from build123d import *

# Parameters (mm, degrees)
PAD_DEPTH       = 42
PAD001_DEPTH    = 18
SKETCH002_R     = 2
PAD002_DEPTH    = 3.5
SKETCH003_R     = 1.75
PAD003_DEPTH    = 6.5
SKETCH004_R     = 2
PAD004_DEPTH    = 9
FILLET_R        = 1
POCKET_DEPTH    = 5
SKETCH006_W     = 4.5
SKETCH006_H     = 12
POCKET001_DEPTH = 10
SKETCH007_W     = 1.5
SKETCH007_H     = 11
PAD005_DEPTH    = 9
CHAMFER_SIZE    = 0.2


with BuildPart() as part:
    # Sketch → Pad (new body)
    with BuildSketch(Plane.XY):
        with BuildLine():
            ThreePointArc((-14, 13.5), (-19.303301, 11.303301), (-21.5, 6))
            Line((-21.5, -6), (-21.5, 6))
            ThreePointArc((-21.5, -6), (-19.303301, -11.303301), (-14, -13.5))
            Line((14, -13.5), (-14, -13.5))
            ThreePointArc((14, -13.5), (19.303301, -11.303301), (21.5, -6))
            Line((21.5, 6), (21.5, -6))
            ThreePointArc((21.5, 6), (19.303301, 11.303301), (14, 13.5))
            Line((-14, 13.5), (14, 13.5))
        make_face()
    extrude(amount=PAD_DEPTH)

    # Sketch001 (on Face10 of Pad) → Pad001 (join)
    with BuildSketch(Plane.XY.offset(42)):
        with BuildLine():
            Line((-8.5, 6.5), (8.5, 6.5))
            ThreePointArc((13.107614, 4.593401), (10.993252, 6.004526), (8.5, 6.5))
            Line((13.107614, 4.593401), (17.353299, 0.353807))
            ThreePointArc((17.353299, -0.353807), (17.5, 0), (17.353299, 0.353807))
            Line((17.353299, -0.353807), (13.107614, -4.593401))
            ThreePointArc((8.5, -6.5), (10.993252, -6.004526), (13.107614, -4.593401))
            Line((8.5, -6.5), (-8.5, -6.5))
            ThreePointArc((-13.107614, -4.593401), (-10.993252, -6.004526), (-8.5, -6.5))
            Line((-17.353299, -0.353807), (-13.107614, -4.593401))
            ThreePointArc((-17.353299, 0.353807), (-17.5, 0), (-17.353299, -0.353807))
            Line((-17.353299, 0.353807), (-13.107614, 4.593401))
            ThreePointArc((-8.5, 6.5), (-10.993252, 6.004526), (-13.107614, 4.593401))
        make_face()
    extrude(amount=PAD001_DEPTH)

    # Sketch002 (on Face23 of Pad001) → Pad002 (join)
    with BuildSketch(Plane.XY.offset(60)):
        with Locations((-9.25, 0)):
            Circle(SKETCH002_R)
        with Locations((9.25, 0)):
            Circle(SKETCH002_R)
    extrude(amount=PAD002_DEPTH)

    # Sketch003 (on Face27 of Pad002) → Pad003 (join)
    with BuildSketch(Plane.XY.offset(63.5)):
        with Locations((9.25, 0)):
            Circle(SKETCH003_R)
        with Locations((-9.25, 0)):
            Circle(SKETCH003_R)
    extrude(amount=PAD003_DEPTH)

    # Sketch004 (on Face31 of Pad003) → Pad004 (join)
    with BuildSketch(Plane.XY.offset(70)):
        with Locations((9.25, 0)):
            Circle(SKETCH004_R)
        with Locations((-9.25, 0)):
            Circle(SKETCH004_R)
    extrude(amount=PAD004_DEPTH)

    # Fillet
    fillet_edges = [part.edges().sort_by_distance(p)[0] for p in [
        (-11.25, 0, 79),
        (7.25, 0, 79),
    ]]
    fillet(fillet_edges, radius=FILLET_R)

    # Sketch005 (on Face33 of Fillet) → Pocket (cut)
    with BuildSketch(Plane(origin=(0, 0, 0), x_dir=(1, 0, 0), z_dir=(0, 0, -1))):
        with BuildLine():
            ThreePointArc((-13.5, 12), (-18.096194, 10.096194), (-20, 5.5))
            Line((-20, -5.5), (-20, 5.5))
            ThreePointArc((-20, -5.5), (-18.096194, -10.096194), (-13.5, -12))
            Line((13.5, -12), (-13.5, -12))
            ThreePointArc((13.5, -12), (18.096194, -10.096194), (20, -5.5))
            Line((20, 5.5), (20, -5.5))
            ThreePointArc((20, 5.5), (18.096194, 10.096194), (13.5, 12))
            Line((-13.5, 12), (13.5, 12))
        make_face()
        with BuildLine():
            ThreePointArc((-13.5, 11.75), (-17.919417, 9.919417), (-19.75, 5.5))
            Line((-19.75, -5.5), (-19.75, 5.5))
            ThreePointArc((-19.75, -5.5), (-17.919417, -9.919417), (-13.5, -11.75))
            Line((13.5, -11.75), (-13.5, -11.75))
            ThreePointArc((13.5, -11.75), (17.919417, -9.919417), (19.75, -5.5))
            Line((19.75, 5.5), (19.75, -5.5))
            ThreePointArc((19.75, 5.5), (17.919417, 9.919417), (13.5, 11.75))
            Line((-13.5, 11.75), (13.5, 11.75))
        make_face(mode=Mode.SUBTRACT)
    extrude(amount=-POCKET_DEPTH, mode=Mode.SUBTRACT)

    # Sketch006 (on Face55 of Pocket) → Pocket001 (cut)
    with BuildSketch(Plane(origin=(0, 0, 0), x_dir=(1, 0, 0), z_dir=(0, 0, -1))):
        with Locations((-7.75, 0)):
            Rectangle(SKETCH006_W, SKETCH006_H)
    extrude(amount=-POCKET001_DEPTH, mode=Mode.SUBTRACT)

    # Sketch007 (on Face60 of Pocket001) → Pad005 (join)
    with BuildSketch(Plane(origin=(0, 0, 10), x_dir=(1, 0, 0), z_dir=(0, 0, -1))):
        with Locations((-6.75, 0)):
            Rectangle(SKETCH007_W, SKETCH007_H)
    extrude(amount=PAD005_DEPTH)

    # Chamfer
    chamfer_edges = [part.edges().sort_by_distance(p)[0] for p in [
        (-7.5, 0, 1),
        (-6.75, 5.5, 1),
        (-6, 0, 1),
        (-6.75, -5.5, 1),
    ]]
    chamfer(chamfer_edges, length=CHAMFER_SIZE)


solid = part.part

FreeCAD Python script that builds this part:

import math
import FreeCAD as App
import Part
import Sketcher

V = App.Vector
Q = App.Units.Quantity


def edges_at(feature, points):
    """Names of the edges that pass closest to the given points."""
    edges = feature.Shape.Edges
    near = lambda p: min(range(len(edges)), key=lambda i: edges[i].distToShape(Part.Vertex(*p))[0])
    return sorted({f"Edge{near(p) + 1}" for p in points})


def add_polygon(sketch, points):
    """Adds a closed chain of lines whose ends are joined by coincident constraints."""
    first, n = sketch.GeometryCount, len(points)
    for a, b in zip(points, points[1:] + points[:1]):
        sketch.addGeometry(Part.LineSegment(App.Vector(*a, 0), App.Vector(*b, 0)), False)
    for i in range(n):
        sketch.addConstraint(Sketcher.Constraint("Coincident", first + i, 2, first + (i + 1) % n, 1))

doc = App.newDocument("Part")
params = doc.addObject("Spreadsheet::Sheet", "Params")
for row, (alias, value) in enumerate([
    ("sketch1_radius", "7.5 mm"),
    ("sketch1_width", "28 mm"),
    ("sketch1_height", "12 mm"),
    ("pad1_length", "42 mm"),
    ("sketch2_radius", "0.499999 mm"),
    ("sketch2_width", "17 mm"),
    ("sketch2_length", "6 mm"),
    ("pad2_length", "18 mm"),
    ("sketch3_diameter", "4 mm"),
    ("pad3_length", "3.5 mm"),
    ("sketch4_diameter", "3.5 mm"),
    ("pad4_length", "6.5 mm"),
    ("sketch5_diameter", "4 mm"),
    ("pad5_length", "9 mm"),
    ("fillet_radius", "1 mm"),
    ("sketch6_radius", "6.5 mm"),
    ("sketch6_width", "27 mm"),
    ("sketch6_height", "11 mm"),
    ("sketch6_radius2", "6.250001 mm"),
    ("pocket1_length", "5 mm"),
    ("sketch7_height", "12 mm"),
    ("sketch7_width", "4.5 mm"),
    ("pocket2_length", "10 mm"),
    ("sketch8_height", "11 mm"),
    ("sketch8_width", "1.5 mm"),
    ("pad6_length", "9 mm"),
    ("chamfer_size", "0.2 mm"),
], start=1):
    params.set(f"A{row}", alias)
    params.set(f"B{row}", "=" + value)
    params.setAlias(f"B{row}", alias)

body = doc.addObject("PartDesign::Body", "Body")

sketch1 = body.newObject("Sketcher::SketchObject", "Sketch")
sketch1.AttachmentSupport = (doc.getObject("XY_Plane"), [""])
sketch1.MapMode = "FlatFace"
sketch1.addGeometry(Part.ArcOfCircle(Part.Circle(V(-14, 6, 0), V(0, 0, 1), 7), math.radians(90), math.radians(180)), False)
sketch1.addGeometry(Part.LineSegment(V(-22, 6, 0), V(-22, -6, 0)), False)
sketch1.addGeometry(Part.ArcOfCircle(Part.Circle(V(-14, -6, 0), V(0, 0, 1), 7), math.radians(180), math.radians(270)), False)
sketch1.addGeometry(Part.LineSegment(V(-14, -14, 0), V(14, -14, 0)), False)
sketch1.addGeometry(Part.ArcOfCircle(Part.Circle(V(14, -6, 0), V(0, 0, 1), 7), math.radians(-90), math.radians(0)), False)
sketch1.addGeometry(Part.LineSegment(V(22, -6, 0), V(22, 6, 0)), False)
sketch1.addGeometry(Part.ArcOfCircle(Part.Circle(V(14, 6, 0), V(0, 0, 1), 7), math.radians(0), math.radians(90)), False)
sketch1.addGeometry(Part.LineSegment(V(14, 14, 0), V(-14, 14, 0)), False)
sketch1.addConstraint(Sketcher.Constraint("Tangent", 0, 2, 1, 1))
sketch1.addConstraint(Sketcher.Constraint("Tangent", 1, 2, 2, 1))
sketch1.addConstraint(Sketcher.Constraint("Tangent", 2, 2, 3, 1))
sketch1.addConstraint(Sketcher.Constraint("Tangent", 3, 2, 4, 1))
sketch1.addConstraint(Sketcher.Constraint("Tangent", 4, 2, 5, 1))
sketch1.addConstraint(Sketcher.Constraint("Tangent", 5, 2, 6, 1))
sketch1.addConstraint(Sketcher.Constraint("Tangent", 6, 2, 7, 1))
sketch1.addConstraint(Sketcher.Constraint("Tangent", 7, 2, 0, 1))
sketch1.addConstraint(Sketcher.Constraint("Vertical", 1))
sketch1.addConstraint(Sketcher.Constraint("Horizontal", 3))
sketch1.addConstraint(Sketcher.Constraint("Vertical", 5))
sketch1.addConstraint(Sketcher.Constraint("Horizontal", 7))
sketch1.addConstraint(Sketcher.Constraint("Equal", 0, 2))
sketch1.addConstraint(Sketcher.Constraint("Equal", 2, 4))
sketch1.addConstraint(Sketcher.Constraint("Equal", 4, 6))
sketch1.addConstraint(Sketcher.Constraint("Symmetric", 0, 3, 4, 3, -1, 1))
sketch1.addConstraint(Sketcher.Constraint("Radius", 0, Q("7.5 mm")))
sketch1.addConstraint(Sketcher.Constraint("DistanceX", 3, 1, 3, 2, Q("28 mm")))
sketch1.addConstraint(Sketcher.Constraint("DistanceY", 1, 2, 1, 1, Q("12 mm")))
sketch1.setExpression("Constraints[16]", "Params.sketch1_radius")
sketch1.setExpression("Constraints[17]", "Params.sketch1_width")
sketch1.setExpression("Constraints[18]", "Params.sketch1_height")
pad1 = body.newObject("PartDesign::Pad", "Pad")
pad1.Profile = sketch1
pad1.setExpression("Length", "Params.pad1_length")

sketch2 = body.newObject("Sketcher::SketchObject", "Sketch001")
sketch2.AttachmentSupport = (doc.getObject("XY_Plane"), [""])
sketch2.MapMode = "FlatFace"
sketch2.AttachmentOffset = App.Placement(V(0, 0, 42), App.Rotation())
sketch2.addGeometry(Part.LineSegment(V(8.5, 6.5, 0), V(-8.5, 6.5, 0)), False)
sketch2.addGeometry(Part.ArcOfCircle(Part.Circle(V(-8.5, -0.02, 0), V(0, 0, 1), 6.52), math.radians(90), math.radians(135)), False)
sketch2.addGeometry(Part.LineSegment(V(-13.11, 4.59, 0), V(-17.35, 0.35, 0)), False)
sketch2.addGeometry(Part.ArcOfCircle(Part.Circle(V(-17, 0, 0), V(0, 0, 1), 0.5), math.radians(135), math.radians(225)), False)
sketch2.addGeometry(Part.LineSegment(V(-17.35, -0.35, 0), V(-13.11, -4.59, 0)), False)
sketch2.addGeometry(Part.ArcOfCircle(Part.Circle(V(-8.5, 0.02, 0), V(0, 0, 1), 6.52), math.radians(-135), math.radians(-90)), False)
sketch2.addGeometry(Part.LineSegment(V(-8.5, -6.5, 0), V(8.5, -6.5, 0)), False)
sketch2.addGeometry(Part.ArcOfCircle(Part.Circle(V(8.5, 0.02, 0), V(0, 0, 1), 6.52), math.radians(-90), math.radians(-45)), False)
sketch2.addGeometry(Part.LineSegment(V(13.11, -4.59, 0), V(17.35, -0.35, 0)), False)
sketch2.addGeometry(Part.ArcOfCircle(Part.Circle(V(17, 0, 0), V(0, 0, 1), 0.5), math.radians(-45), math.radians(45)), False)
sketch2.addGeometry(Part.LineSegment(V(17.35, 0.35, 0), V(13.11, 4.59, 0)), False)
sketch2.addGeometry(Part.ArcOfCircle(Part.Circle(V(8.5, -0.02, 0), V(0, 0, 1), 6.52), math.radians(45), math.radians(90)), False)
sketch2.addConstraint(Sketcher.Constraint("Tangent", 0, 2, 1, 1))
sketch2.addConstraint(Sketcher.Constraint("Tangent", 1, 2, 2, 1))
sketch2.addConstraint(Sketcher.Constraint("Coincident", 2, 2, 3, 1))
sketch2.addConstraint(Sketcher.Constraint("Coincident", 3, 2, 4, 1))
sketch2.addConstraint(Sketcher.Constraint("Tangent", 4, 2, 5, 1))
sketch2.addConstraint(Sketcher.Constraint("Tangent", 5, 2, 6, 1))
sketch2.addConstraint(Sketcher.Constraint("Tangent", 6, 2, 7, 1))
sketch2.addConstraint(Sketcher.Constraint("Tangent", 7, 2, 8, 1))
sketch2.addConstraint(Sketcher.Constraint("Coincident", 8, 2, 9, 1))
sketch2.addConstraint(Sketcher.Constraint("Coincident", 9, 2, 10, 1))
sketch2.addConstraint(Sketcher.Constraint("Tangent", 10, 2, 11, 1))
sketch2.addConstraint(Sketcher.Constraint("Tangent", 11, 2, 0, 1))
sketch2.addConstraint(Sketcher.Constraint("Horizontal", 0))
sketch2.addConstraint(Sketcher.Constraint("Horizontal", 6))
sketch2.addConstraint(Sketcher.Constraint("Equal", 1, 5))
sketch2.addConstraint(Sketcher.Constraint("Equal", 5, 7))
sketch2.addConstraint(Sketcher.Constraint("Equal", 3, 9))
sketch2.addConstraint(Sketcher.Constraint("Equal", 7, 11))
sketch2.addConstraint(Sketcher.Constraint("Symmetric", 1, 3, 7, 3, -1, 1))
sketch2.addConstraint(Sketcher.Constraint("Symmetric", 3, 3, 9, 3, -1, 1))
sketch2.addConstraint(Sketcher.Constraint("Symmetric", 4, 2, 7, 2, -2))
sketch2.addConstraint(Sketcher.Constraint("Parallel", 4, 10))
sketch2.addConstraint(Sketcher.Constraint("Horizontal", 3, 2, 8, 2))
sketch2.addConstraint(Sketcher.Constraint("Horizontal", 2, 2, 9, 2))
sketch2.addConstraint(Sketcher.Constraint("Vertical", 2, 2, 3, 2))
sketch2.addConstraint(Sketcher.Constraint("Radius", 3, Q("0.499999 mm")))
sketch2.addConstraint(Sketcher.Constraint("DistanceX", 0, 2, 0, 1, Q("17 mm")))
sketch2.addConstraint(Sketcher.Constraint("Distance", 2, Q("6 mm")))
sketch2.addConstraint(Sketcher.Constraint("DistanceX", 3, 3, -1, 1, Q("17.000001 mm")))
sketch2.addConstraint(Sketcher.Constraint("DistanceY", -1, 1, 0, 2, Q("6.5 mm")))
sketch2.addConstraint(Sketcher.Constraint("Radius", 1, Q("6.520839 mm")))
sketch2.setExpression("Constraints[25]", "Params.sketch2_radius")
sketch2.setExpression("Constraints[26]", "Params.sketch2_width")
sketch2.setExpression("Constraints[27]", "Params.sketch2_length")
pad2 = body.newObject("PartDesign::Pad", "Pad001")
pad2.Profile = sketch2
pad2.setExpression("Length", "Params.pad2_length")

sketch3 = body.newObject("Sketcher::SketchObject", "Sketch002")
sketch3.AttachmentSupport = (doc.getObject("XY_Plane"), [""])
sketch3.MapMode = "FlatFace"
sketch3.AttachmentOffset = App.Placement(V(0, 0, 60), App.Rotation())
sketch3.addGeometry(Part.Circle(V(-9.2, 0, 0), V(0, 0, 1), 2), False)
sketch3.addGeometry(Part.Circle(V(9.2, 0, 0), V(0, 0, 1), 2), False)
sketch3.addConstraint(Sketcher.Constraint("Equal", 0, 1))
sketch3.addConstraint(Sketcher.Constraint("Symmetric", 0, 3, 1, 3, -1, 1))
sketch3.addConstraint(Sketcher.Constraint("PointOnObject", 0, 3, -1))
sketch3.addConstraint(Sketcher.Constraint("Diameter", 0, Q("4 mm")))
sketch3.addConstraint(Sketcher.Constraint("DistanceX", 0, 3, 1, 3, Q("18.5 mm")))
sketch3.setExpression("Constraints[3]", "Params.sketch3_diameter")
pad3 = body.newObject("PartDesign::Pad", "Pad002")
pad3.Profile = sketch3
pad3.setExpression("Length", "Params.pad3_length")

sketch4 = body.newObject("Sketcher::SketchObject", "Sketch003")
sketch4.AttachmentSupport = (doc.getObject("XY_Plane"), [""])
sketch4.MapMode = "FlatFace"
sketch4.AttachmentOffset = App.Placement(V(0, 0, 63.5), App.Rotation())
sketch4.addGeometry(Part.Circle(V(9.2, 0, 0), V(0, 0, 1), 1.8), False)
sketch4.addGeometry(Part.Circle(V(-9.2, 0, 0), V(0, 0, 1), 1.8), False)
sketch4.addConstraint(Sketcher.Constraint("Equal", 0, 1))
sketch4.addConstraint(Sketcher.Constraint("Symmetric", 0, 3, 1, 3, -1, 1))
sketch4.addConstraint(Sketcher.Constraint("PointOnObject", 0, 3, -1))
sketch4.addConstraint(Sketcher.Constraint("Diameter", 0, Q("3.5 mm")))
sketch4.addConstraint(Sketcher.Constraint("DistanceX", 1, 3, 0, 3, Q("18.5 mm")))
sketch4.setExpression("Constraints[3]", "Params.sketch4_diameter")
pad4 = body.newObject("PartDesign::Pad", "Pad003")
pad4.Profile = sketch4
pad4.setExpression("Length", "Params.pad4_length")

sketch5 = body.newObject("Sketcher::SketchObject", "Sketch004")
sketch5.AttachmentSupport = (doc.getObject("XY_Plane"), [""])
sketch5.MapMode = "FlatFace"
sketch5.AttachmentOffset = App.Placement(V(0, 0, 70), App.Rotation())
sketch5.addGeometry(Part.Circle(V(9.2, 0, 0), V(0, 0, 1), 2), False)
sketch5.addGeometry(Part.Circle(V(-9.2, 0, 0), V(0, 0, 1), 2), False)
sketch5.addConstraint(Sketcher.Constraint("Equal", 0, 1))
sketch5.addConstraint(Sketcher.Constraint("Symmetric", 0, 3, 1, 3, -1, 1))
sketch5.addConstraint(Sketcher.Constraint("PointOnObject", 0, 3, -1))
sketch5.addConstraint(Sketcher.Constraint("Diameter", 0, Q("4 mm")))
sketch5.addConstraint(Sketcher.Constraint("DistanceX", 1, 3, 0, 3, Q("18.5 mm")))
sketch5.setExpression("Constraints[3]", "Params.sketch5_diameter")
pad5 = body.newObject("PartDesign::Pad", "Pad004")
pad5.Profile = sketch5
pad5.setExpression("Length", "Params.pad5_length")
doc.recompute()

fillet = body.newObject("PartDesign::Fillet", "Fillet")
fillet.Base = (pad5, edges_at(pad5, [(-11.25, 0, 79), (7.25, 0, 79)]))
fillet.setExpression("Radius", "Params.fillet_radius")

sketch6 = body.newObject("Sketcher::SketchObject", "Sketch005")
sketch6.AttachmentSupport = (doc.getObject("XY_Plane"), [""])
sketch6.MapMode = "FlatFace"
sketch6.addGeometry(Part.ArcOfCircle(Part.Circle(V(-13, -5, 0), V(0, 0, 1), 7), math.radians(-180), math.radians(-90)), False)
sketch6.addGeometry(Part.LineSegment(V(-20, -6, 0), V(-20, 6, 0)), False)
sketch6.addGeometry(Part.ArcOfCircle(Part.Circle(V(-13, 5, 0), V(0, 0, 1), 7), math.radians(90), math.radians(180)), False)
sketch6.addGeometry(Part.LineSegment(V(-14, 12, 0), V(14, 12, 0)), False)
sketch6.addGeometry(Part.ArcOfCircle(Part.Circle(V(13, 5, 0), V(0, 0, 1), 7), math.radians(0), math.radians(90)), False)
sketch6.addGeometry(Part.LineSegment(V(20, 6, 0), V(20, -6, 0)), False)
sketch6.addGeometry(Part.ArcOfCircle(Part.Circle(V(13, -5, 0), V(0, 0, 1), 7), math.radians(-90), math.radians(0)), False)
sketch6.addGeometry(Part.LineSegment(V(14, -12, 0), V(-14, -12, 0)), False)
sketch6.addGeometry(Part.ArcOfCircle(Part.Circle(V(-13, -5, 0), V(0, 0, 1), 6), math.radians(-180), math.radians(-90)), False)
sketch6.addGeometry(Part.LineSegment(V(-14, -12, 0), V(14, -12, 0)), False)
sketch6.addGeometry(Part.ArcOfCircle(Part.Circle(V(13, -5, 0), V(0, 0, 1), 6), math.radians(-90), math.radians(0)), False)
sketch6.addGeometry(Part.LineSegment(V(20, -6, 0), V(20, 6, 0)), False)
sketch6.addGeometry(Part.ArcOfCircle(Part.Circle(V(13, 5, 0), V(0, 0, 1), 6), math.radians(0), math.radians(90)), False)
sketch6.addGeometry(Part.LineSegment(V(14, 12, 0), V(-14, 12, 0)), False)
sketch6.addGeometry(Part.ArcOfCircle(Part.Circle(V(-13, 5, 0), V(0, 0, 1), 6), math.radians(90), math.radians(180)), False)
sketch6.addGeometry(Part.LineSegment(V(-20, 6, 0), V(-20, -6, 0)), False)
sketch6.addConstraint(Sketcher.Constraint("Tangent", 0, 1, 1, 1))
sketch6.addConstraint(Sketcher.Constraint("Tangent", 1, 2, 2, 2))
sketch6.addConstraint(Sketcher.Constraint("Tangent", 2, 1, 3, 1))
sketch6.addConstraint(Sketcher.Constraint("Tangent", 3, 2, 4, 2))
sketch6.addConstraint(Sketcher.Constraint("Tangent", 4, 1, 5, 1))
sketch6.addConstraint(Sketcher.Constraint("Tangent", 5, 2, 6, 2))
sketch6.addConstraint(Sketcher.Constraint("Tangent", 6, 1, 7, 1))
sketch6.addConstraint(Sketcher.Constraint("Tangent", 7, 2, 0, 2))
sketch6.addConstraint(Sketcher.Constraint("Tangent", 8, 2, 9, 1))
sketch6.addConstraint(Sketcher.Constraint("Tangent", 9, 2, 10, 1))
sketch6.addConstraint(Sketcher.Constraint("Tangent", 10, 2, 11, 1))
sketch6.addConstraint(Sketcher.Constraint("Tangent", 11, 2, 12, 1))
sketch6.addConstraint(Sketcher.Constraint("Tangent", 12, 2, 13, 1))
sketch6.addConstraint(Sketcher.Constraint("Tangent", 13, 2, 14, 1))
sketch6.addConstraint(Sketcher.Constraint("Tangent", 14, 2, 15, 1))
sketch6.addConstraint(Sketcher.Constraint("Tangent", 15, 2, 8, 1))
sketch6.addConstraint(Sketcher.Constraint("Vertical", 1))
sketch6.addConstraint(Sketcher.Constraint("Horizontal", 3))
sketch6.addConstraint(Sketcher.Constraint("Vertical", 5))
sketch6.addConstraint(Sketcher.Constraint("Horizontal", 7))
sketch6.addConstraint(Sketcher.Constraint("Horizontal", 9))
sketch6.addConstraint(Sketcher.Constraint("Vertical", 11))
sketch6.addConstraint(Sketcher.Constraint("Horizontal", 13))
sketch6.addConstraint(Sketcher.Constraint("Vertical", 15))
sketch6.addConstraint(Sketcher.Constraint("Coincident", 8, 3, 0, 3))
sketch6.addConstraint(Sketcher.Constraint("Coincident", 10, 3, 6, 3))
sketch6.addConstraint(Sketcher.Constraint("Coincident", 12, 3, 4, 3))
sketch6.addConstraint(Sketcher.Constraint("Equal", 0, 2))
sketch6.addConstraint(Sketcher.Constraint("Equal", 2, 4))
sketch6.addConstraint(Sketcher.Constraint("Equal", 4, 6))
sketch6.addConstraint(Sketcher.Constraint("Equal", 12, 14))
sketch6.addConstraint(Sketcher.Constraint("Symmetric", 0, 3, 4, 3, -1, 1))
sketch6.addConstraint(Sketcher.Constraint("Radius", 0, Q("6.5 mm")))
sketch6.addConstraint(Sketcher.Constraint("DistanceX", 3, 1, 3, 2, Q("27 mm")))
sketch6.addConstraint(Sketcher.Constraint("DistanceY", 1, 1, 1, 2, Q("11 mm")))
sketch6.addConstraint(Sketcher.Constraint("Radius", 8, Q("6.250001 mm")))
sketch6.setExpression("Constraints[32]", "Params.sketch6_radius")
sketch6.setExpression("Constraints[33]", "Params.sketch6_width")
sketch6.setExpression("Constraints[34]", "Params.sketch6_height")
sketch6.setExpression("Constraints[35]", "Params.sketch6_radius2")
pocket1 = body.newObject("PartDesign::Pocket", "Pocket")
pocket1.Profile = sketch6
pocket1.setExpression("Length", "Params.pocket1_length")
pocket1.Reversed = True

sketch7 = body.newObject("Sketcher::SketchObject", "Sketch006")
sketch7.AttachmentSupport = (doc.getObject("XY_Plane"), [""])
sketch7.MapMode = "FlatFace"
add_polygon(sketch7, [(-10, -6), (-10, 6), (-5.5, 6), (-5.5, -6)])
sketch7.addConstraint(Sketcher.Constraint("Vertical", 0))
sketch7.addConstraint(Sketcher.Constraint("Horizontal", 1))
sketch7.addConstraint(Sketcher.Constraint("Vertical", 2))
sketch7.addConstraint(Sketcher.Constraint("Horizontal", 3))
sketch7.addConstraint(Sketcher.Constraint("DistanceY", 0, 1, 0, 2, Q("12 mm")))
sketch7.addConstraint(Sketcher.Constraint("DistanceX", 1, 1, 1, 2, Q("4.5 mm")))
sketch7.addConstraint(Sketcher.Constraint("DistanceX", 0, 2, -1, 1, Q("10 mm")))
sketch7.addConstraint(Sketcher.Constraint("DistanceY", -1, 1, 0, 2, Q("6 mm")))
sketch7.setExpression("Constraints[8]", "Params.sketch7_height")
sketch7.setExpression("Constraints[9]", "Params.sketch7_width")
pocket2 = body.newObject("PartDesign::Pocket", "Pocket001")
pocket2.Profile = sketch7
pocket2.setExpression("Length", "Params.pocket2_length")
pocket2.Reversed = True

sketch8 = body.newObject("Sketcher::SketchObject", "Sketch007")
sketch8.AttachmentSupport = (doc.getObject("XY_Plane"), [""])
sketch8.MapMode = "FlatFace"
sketch8.AttachmentOffset = App.Placement(V(0, 0, 10), App.Rotation())
add_polygon(sketch8, [(-7.5, -5.5), (-7.5, 5.5), (-6, 5.5), (-6, -5.5)])
sketch8.addConstraint(Sketcher.Constraint("Vertical", 0))
sketch8.addConstraint(Sketcher.Constraint("Horizontal", 1))
sketch8.addConstraint(Sketcher.Constraint("Vertical", 2))
sketch8.addConstraint(Sketcher.Constraint("Horizontal", 3))
sketch8.addConstraint(Sketcher.Constraint("DistanceY", 0, 1, 0, 2, Q("11 mm")))
sketch8.addConstraint(Sketcher.Constraint("DistanceX", 1, 1, 1, 2, Q("1.5 mm")))
sketch8.addConstraint(Sketcher.Constraint("DistanceX", 1, 2, -1, 1, Q("6 mm")))
sketch8.addConstraint(Sketcher.Constraint("DistanceY", -1, 1, 0, 2, Q("5.5 mm")))
sketch8.setExpression("Constraints[8]", "Params.sketch8_height")
sketch8.setExpression("Constraints[9]", "Params.sketch8_width")
pad6 = body.newObject("PartDesign::Pad", "Pad005")
pad6.Profile = sketch8
pad6.setExpression("Length", "Params.pad6_length")
pad6.Reversed = True
doc.recompute()

chamfer = body.newObject("PartDesign::Chamfer", "Chamfer")
chamfer.Base = (pad6, edges_at(pad6, [
    (-7.5, 0, 1),
    (-6.75, 5.5, 1),
    (-6, 0, 1),
    (-6.75, -5.5, 1),
]))
chamfer.setExpression("Size", "Params.chamfer_size")

doc.recompute()
